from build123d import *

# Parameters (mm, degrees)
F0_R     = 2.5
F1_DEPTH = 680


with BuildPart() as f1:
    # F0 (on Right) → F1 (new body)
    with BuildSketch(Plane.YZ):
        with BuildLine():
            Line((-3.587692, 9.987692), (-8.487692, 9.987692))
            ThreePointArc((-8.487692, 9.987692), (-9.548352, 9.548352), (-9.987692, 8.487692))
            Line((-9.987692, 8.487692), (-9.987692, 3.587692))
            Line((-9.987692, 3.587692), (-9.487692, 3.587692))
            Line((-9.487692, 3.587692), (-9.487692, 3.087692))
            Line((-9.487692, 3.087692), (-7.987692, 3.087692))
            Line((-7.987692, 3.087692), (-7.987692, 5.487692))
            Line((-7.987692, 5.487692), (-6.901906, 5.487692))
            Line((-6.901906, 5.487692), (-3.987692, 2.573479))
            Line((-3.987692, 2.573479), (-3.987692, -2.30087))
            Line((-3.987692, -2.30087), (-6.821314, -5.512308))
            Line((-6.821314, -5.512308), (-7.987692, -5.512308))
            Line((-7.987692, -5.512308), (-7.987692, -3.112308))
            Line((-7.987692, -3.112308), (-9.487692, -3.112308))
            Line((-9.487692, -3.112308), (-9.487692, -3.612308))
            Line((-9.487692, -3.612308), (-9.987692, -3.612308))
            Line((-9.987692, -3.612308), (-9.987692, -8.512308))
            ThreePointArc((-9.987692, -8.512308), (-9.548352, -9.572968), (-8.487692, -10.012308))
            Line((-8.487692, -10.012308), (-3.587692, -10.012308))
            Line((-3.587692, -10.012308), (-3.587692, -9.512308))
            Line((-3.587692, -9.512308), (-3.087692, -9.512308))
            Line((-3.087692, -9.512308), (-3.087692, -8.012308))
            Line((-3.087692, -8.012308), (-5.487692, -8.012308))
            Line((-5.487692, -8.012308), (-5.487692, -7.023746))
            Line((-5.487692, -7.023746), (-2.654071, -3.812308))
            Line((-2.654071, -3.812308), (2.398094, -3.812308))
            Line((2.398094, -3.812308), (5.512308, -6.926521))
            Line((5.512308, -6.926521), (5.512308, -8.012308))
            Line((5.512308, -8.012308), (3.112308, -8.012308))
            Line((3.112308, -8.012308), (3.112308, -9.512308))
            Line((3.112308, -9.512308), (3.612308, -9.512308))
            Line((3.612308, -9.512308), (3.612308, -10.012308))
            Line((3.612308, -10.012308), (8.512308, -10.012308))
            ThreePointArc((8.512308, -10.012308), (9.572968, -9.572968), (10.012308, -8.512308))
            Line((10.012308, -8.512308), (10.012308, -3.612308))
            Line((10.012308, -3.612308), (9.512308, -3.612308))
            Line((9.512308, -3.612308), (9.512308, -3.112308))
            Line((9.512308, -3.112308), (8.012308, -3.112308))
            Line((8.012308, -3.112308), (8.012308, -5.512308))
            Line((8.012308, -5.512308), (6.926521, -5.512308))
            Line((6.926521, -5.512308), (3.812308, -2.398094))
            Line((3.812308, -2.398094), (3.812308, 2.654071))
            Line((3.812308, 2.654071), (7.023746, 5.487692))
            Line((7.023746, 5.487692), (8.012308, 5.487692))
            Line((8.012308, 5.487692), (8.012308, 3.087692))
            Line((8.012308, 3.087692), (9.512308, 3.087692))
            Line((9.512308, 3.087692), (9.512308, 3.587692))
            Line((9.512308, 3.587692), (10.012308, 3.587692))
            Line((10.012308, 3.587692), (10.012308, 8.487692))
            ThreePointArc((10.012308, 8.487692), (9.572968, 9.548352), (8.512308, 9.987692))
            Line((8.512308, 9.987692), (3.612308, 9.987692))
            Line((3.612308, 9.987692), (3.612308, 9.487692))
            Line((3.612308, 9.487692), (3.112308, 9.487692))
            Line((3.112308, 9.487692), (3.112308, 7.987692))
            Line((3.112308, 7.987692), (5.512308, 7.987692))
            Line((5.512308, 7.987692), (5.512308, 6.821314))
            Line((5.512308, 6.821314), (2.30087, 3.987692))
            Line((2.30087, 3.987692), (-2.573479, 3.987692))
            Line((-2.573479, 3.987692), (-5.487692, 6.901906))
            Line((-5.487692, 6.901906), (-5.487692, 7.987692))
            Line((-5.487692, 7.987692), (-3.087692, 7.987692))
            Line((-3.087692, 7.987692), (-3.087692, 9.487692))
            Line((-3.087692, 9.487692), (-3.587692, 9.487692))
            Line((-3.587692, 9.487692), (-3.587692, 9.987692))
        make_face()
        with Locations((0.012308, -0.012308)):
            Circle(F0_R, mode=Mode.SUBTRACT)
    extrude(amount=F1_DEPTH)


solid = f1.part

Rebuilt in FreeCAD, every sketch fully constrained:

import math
import FreeCAD as App
import Part
import Sketcher
from FreeCAD import Vector
Q = App.Units.Quantity

doc = App.newDocument("Part")
body = doc.addObject("PartDesign::Body", "Body")

sketch1 = body.newObject("Sketcher::SketchObject", "Sketch")
sketch1.AttachmentSupport = (doc.getObject("YZ_Plane"), [""])
sketch1.MapMode = "FlatFace"
sketch1.addGeometry([
    Part.LineSegment(Vector(-3.6, 10, 0), Vector(-8.5, 10, 0)),
    Part.ArcOfCircle(Part.Circle(Vector(-8.5, 8.5, 0), Vector(0, 0, 1), 1.5), math.radians(90), math.radians(180)),
    Part.LineSegment(Vector(-10, 8.5, 0), Vector(-10, 3.6, 0)),
    Part.LineSegment(Vector(-10, 3.6, 0), Vector(-9.5, 3.6, 0)),
    Part.LineSegment(Vector(-9.5, 3.6, 0), Vector(-9.5, 3.1, 0)),
    Part.LineSegment(Vector(-9.5, 3.1, 0), Vector(-8, 3.1, 0)),
    Part.LineSegment(Vector(-8, 3.1, 0), Vector(-8, 5.5, 0)),
    Part.LineSegment(Vector(-8, 5.5, 0), Vector(-6.9, 5.5, 0)),
    Part.LineSegment(Vector(-6.9, 5.5, 0), Vector(-4, 2.6, 0)),
    Part.LineSegment(Vector(-4, 2.6, 0), Vector(-4, -2.3, 0)),
    Part.LineSegment(Vector(-4, -2.3, 0), Vector(-6.8, -5.5, 0)),
    Part.LineSegment(Vector(-6.8, -5.5, 0), Vector(-8, -5.5, 0)),
    Part.LineSegment(Vector(-8, -5.5, 0), Vector(-8, -3.1, 0)),
    Part.LineSegment(Vector(-8, -3.1, 0), Vector(-9.5, -3.1, 0)),
    Part.LineSegment(Vector(-9.5, -3.1, 0), Vector(-9.5, -3.6, 0)),
    Part.LineSegment(Vector(-9.5, -3.6, 0), Vector(-10, -3.6, 0)),
    Part.LineSegment(Vector(-10, -3.6, 0), Vector(-10, -8.5, 0)),
    Part.ArcOfCircle(Part.Circle(Vector(-8.5, -8.5, 0), Vector(0, 0, 1), 1.5), math.radians(-180), math.radians(-90)),
    Part.LineSegment(Vector(-8.5, -10, 0), Vector(-3.6, -10, 0)),
    Part.LineSegment(Vector(-3.6, -10, 0), Vector(-3.6, -9.5, 0)),
    Part.LineSegment(Vector(-3.6, -9.5, 0), Vector(-3.1, -9.5, 0)),
    Part.LineSegment(Vector(-3.1, -9.5, 0), Vector(-3.1, -8, 0)),
    Part.LineSegment(Vector(-3.1, -8, 0), Vector(-5.5, -8, 0)),
    Part.LineSegment(Vector(-5.5, -8, 0), Vector(-5.5, -7, 0)),
    Part.LineSegment(Vector(-5.5, -7, 0), Vector(-2.7, -3.8, 0)),
    Part.LineSegment(Vector(-2.7, -3.8, 0), Vector(2.4, -3.8, 0)),
    Part.LineSegment(Vector(2.4, -3.8, 0), Vector(5.5, -6.9, 0)),
    Part.LineSegment(Vector(5.5, -6.9, 0), Vector(5.5, -8, 0)),
    Part.LineSegment(Vector(5.5, -8, 0), Vector(3.1, -8, 0)),
    Part.LineSegment(Vector(3.1, -8, 0), Vector(3.1, -9.5, 0)),
    Part.LineSegment(Vector(3.1, -9.5, 0), Vector(3.6, -9.5, 0)),
    Part.LineSegment(Vector(3.6, -9.5, 0), Vector(3.6, -10, 0)),
    Part.LineSegment(Vector(3.6, -10, 0), Vector(8.5, -10, 0)),
    Part.ArcOfCircle(Part.Circle(Vector(8.5, -8.5, 0), Vector(0, 0, 1), 1.5), math.radians(-90), math.radians(0)),
    Part.LineSegment(Vector(10, -8.5, 0), Vector(10, -3.6, 0)),
    Part.LineSegment(Vector(10, -3.6, 0), Vector(9.5, -3.6, 0)),
    Part.LineSegment(Vector(9.5, -3.6, 0), Vector(9.5, -3.1, 0)),
    Part.LineSegment(Vector(9.5, -3.1, 0), Vector(8, -3.1, 0)),
    Part.LineSegment(Vector(8, -3.1, 0), Vector(8, -5.5, 0)),
    Part.LineSegment(Vector(8, -5.5, 0), Vector(6.9, -5.5, 0)),
    Part.LineSegment(Vector(6.9, -5.5, 0), Vector(3.8, -2.4, 0)),
    Part.LineSegment(Vector(3.8, -2.4, 0), Vector(3.8, 2.7, 0)),
    Part.LineSegment(Vector(3.8, 2.7, 0), Vector(7, 5.5, 0)),
    Part.LineSegment(Vector(7, 5.5, 0), Vector(8, 5.5, 0)),
    Part.LineSegment(Vector(8, 5.5, 0), Vector(8, 3.1, 0)),
    Part.LineSegment(Vector(8, 3.1, 0), Vector(9.5, 3.1, 0)),
    Part.LineSegment(Vector(9.5, 3.1, 0), Vector(9.5, 3.6, 0)),
    Part.LineSegment(Vector(9.5, 3.6, 0), Vector(10, 3.6, 0)),
    Part.LineSegment(Vector(10, 3.6, 0), Vector(10, 8.5, 0)),
    Part.ArcOfCircle(Part.Circle(Vector(8.5, 8.5, 0), Vector(0, 0, 1), 1.5), math.radians(0), math.radians(90)),
    Part.LineSegment(Vector(8.5, 10, 0), Vector(3.6, 10, 0)),
    Part.LineSegment(Vector(3.6, 10, 0), Vector(3.6, 9.5, 0)),
    Part.LineSegment(Vector(3.6, 9.5, 0), Vector(3.1, 9.5, 0)),
    Part.LineSegment(Vector(3.1, 9.5, 0), Vector(3.1, 8, 0)),
    Part.LineSegment(Vector(3.1, 8, 0), Vector(5.5, 8, 0)),
    Part.LineSegment(Vector(5.5, 8, 0), Vector(5.5, 6.8, 0)),
    Part.LineSegment(Vector(5.5, 6.8, 0), Vector(2.3, 4, 0)),
    Part.LineSegment(Vector(2.3, 4, 0), Vector(-2.6, 4, 0)),
    Part.LineSegment(Vector(-2.6, 4, 0), Vector(-5.5, 6.9, 0)),
    Part.LineSegment(Vector(-5.5, 6.9, 0), Vector(-5.5, 8, 0)),
    Part.LineSegment(Vector(-5.5, 8, 0), Vector(-3.1, 8, 0)),
    Part.LineSegment(Vector(-3.1, 8, 0), Vector(-3.1, 9.5, 0)),
    Part.LineSegment(Vector(-3.1, 9.5, 0), Vector(-3.6, 9.5, 0)),
    Part.LineSegment(Vector(-3.6, 9.5, 0), Vector(-3.6, 10, 0)),
    Part.Circle(Vector(0, 0, 0), Vector(0, 0, 1), 2.5),
], False)
sketch1.addConstraint([
    Sketcher.Constraint("Tangent", 0, 2, 1, 1),
    Sketcher.Constraint("Tangent", 1, 2, 2, 1),
    Sketcher.Constraint("Coincident", 2, 2, 3, 1),
    Sketcher.Constraint("Coincident", 3, 2, 4, 1),
    Sketcher.Constraint("Coincident", 4, 2, 5, 1),
    Sketcher.Constraint("Coincident", 5, 2, 6, 1),
    Sketcher.Constraint("Coincident", 6, 2, 7, 1),
    Sketcher.Constraint("Coincident", 7, 2, 8, 1),
    Sketcher.Constraint("Coincident", 8, 2, 9, 1),
    Sketcher.Constraint("Coincident", 9, 2, 10, 1),
    Sketcher.Constraint("Coincident", 10, 2, 11, 1),
    Sketcher.Constraint("Coincident", 11, 2, 12, 1),
    Sketcher.Constraint("Coincident", 12, 2, 13, 1),
    Sketcher.Constraint("Coincident", 13, 2, 14, 1),
    Sketcher.Constraint("Coincident", 14, 2, 15, 1),
    Sketcher.Constraint("Coincident", 15, 2, 16, 1),
    Sketcher.Constraint("Tangent", 16, 2, 17, 1),
    Sketcher.Constraint("Tangent", 17, 2, 18, 1),
    Sketcher.Constraint("Coincident", 18, 2, 19, 1),
    Sketcher.Constraint("Coincident", 19, 2, 20, 1),
    Sketcher.Constraint("Coincident", 20, 2, 21, 1),
    Sketcher.Constraint("Coincident", 21, 2, 22, 1),
    Sketcher.Constraint("Coincident", 22, 2, 23, 1),
    Sketcher.Constraint("Coincident", 23, 2, 24, 1),
    Sketcher.Constraint("Coincident", 24, 2, 25, 1),
    Sketcher.Constraint("Coincident", 25, 2, 26, 1),
    Sketcher.Constraint("Coincident", 26, 2, 27, 1),
    Sketcher.Constraint("Coincident", 27, 2, 28, 1),
    Sketcher.Constraint("Coincident", 28, 2, 29, 1),
    Sketcher.Constraint("Coincident", 29, 2, 30, 1),
    Sketcher.Constraint("Coincident", 30, 2, 31, 1),
    Sketcher.Constraint("Coincident", 31, 2, 32, 1),
    Sketcher.Constraint("Tangent", 32, 2, 33, 1),
    Sketcher.Constraint("Tangent", 33, 2, 34, 1),
    Sketcher.Constraint("Coincident", 34, 2, 35, 1),
    Sketcher.Constraint("Coincident", 35, 2, 36, 1),
    Sketcher.Constraint("Coincident", 36, 2, 37, 1),
    Sketcher.Constraint("Coincident", 37, 2, 38, 1),
    Sketcher.Constraint("Coincident", 38, 2, 39, 1),
    Sketcher.Constraint("Coincident", 39, 2, 40, 1),
    Sketcher.Constraint("Coincident", 40, 2, 41, 1),
    Sketcher.Constraint("Coincident", 41, 2, 42, 1),
    Sketcher.Constraint("Coincident", 42, 2, 43, 1),
    Sketcher.Constraint("Coincident", 43, 2, 44, 1),
    Sketcher.Constraint("Coincident", 44, 2, 45, 1),
    Sketcher.Constraint("Coincident", 45, 2, 46, 1),
    Sketcher.Constraint("Coincident", 46, 2, 47, 1),
    Sketcher.Constraint("Coincident", 47, 2, 48, 1),
    Sketcher.Constraint("Tangent", 48, 2, 49, 1),
    Sketcher.Constraint("Tangent", 49, 2, 50, 1),
    Sketcher.Constraint("Coincident", 50, 2, 51, 1),
    Sketcher.Constraint("Coincident", 51, 2, 52, 1),
    Sketcher.Constraint("Coincident", 52, 2, 53, 1),
    Sketcher.Constraint("Coincident", 53, 2, 54, 1),
    Sketcher.Constraint("Coincident", 54, 2, 55, 1),
    Sketcher.Constraint("Coincident", 55, 2, 56, 1),
    Sketcher.Constraint("Coincident", 56, 2, 57, 1),
    Sketcher.Constraint("Coincident", 57, 2, 58, 1),
    Sketcher.Constraint("Coincident", 58, 2, 59, 1),
    Sketcher.Constraint("Coincident", 59, 2, 60, 1),
    Sketcher.Constraint("Coincident", 60, 2, 61, 1),
    Sketcher.Constraint("Coincident", 61, 2, 62, 1),
    Sketcher.Constraint("Coincident", 62, 2, 63, 1),
    Sketcher.Constraint("Coincident", 63, 2, 0, 1),
    Sketcher.Constraint("Horizontal", 0),
    Sketcher.Constraint("Vertical", 2),
    Sketcher.Constraint("Horizontal", 3),
    Sketcher.Constraint("Vertical", 4),
    Sketcher.Constraint("Horizontal", 5),
    Sketcher.Constraint("Vertical", 6),
    Sketcher.Constraint("Horizontal", 7),
    Sketcher.Constraint("Vertical", 9),
    Sketcher.Constraint("Horizontal", 11),
    Sketcher.Constraint("Vertical", 12),
    Sketcher.Constraint("Horizontal", 13),
    Sketcher.Constraint("Vertical", 14),
    Sketcher.Constraint("Horizontal", 15),
    Sketcher.Constraint("Vertical", 16),
    Sketcher.Constraint("Horizontal", 18),
    Sketcher.Constraint("Vertical", 19),
    Sketcher.Constraint("Horizontal", 20),
    Sketcher.Constraint("Vertical", 21),
    Sketcher.Constraint("Horizontal", 22),
    Sketcher.Constraint("Vertical", 23),
    Sketcher.Constraint("Horizontal", 25),
    Sketcher.Constraint("Vertical", 27),
    Sketcher.Constraint("Horizontal", 28),
    Sketcher.Constraint("Vertical", 29),
    Sketcher.Constraint("Horizontal", 30),
    Sketcher.Constraint("Vertical", 31),
    Sketcher.Constraint("Horizontal", 32),
    Sketcher.Constraint("Vertical", 34),
    Sketcher.Constraint("Horizontal", 35),
    Sketcher.Constraint("Vertical", 36),
    Sketcher.Constraint("Horizontal", 37),
    Sketcher.Constraint("Vertical", 38),
    Sketcher.Constraint("Horizontal", 39),
    Sketcher.Constraint("Vertical", 41),
    Sketcher.Constraint("Horizontal", 43),
    Sketcher.Constraint("Vertical", 44),
    Sketcher.Constraint("Horizontal", 45),
    Sketcher.Constraint("Vertical", 46),
    Sketcher.Constraint("Horizontal", 47),
    Sketcher.Constraint("Vertical", 48),
    Sketcher.Constraint("Horizontal", 50),
    Sketcher.Constraint("Vertical", 51),
    Sketcher.Constraint("Horizontal", 52),
    Sketcher.Constraint("Vertical", 53),
    Sketcher.Constraint("Horizontal", 54),
    Sketcher.Constraint("Vertical", 55),
    Sketcher.Constraint("Horizontal", 57),
    Sketcher.Constraint("Vertical", 59),
    Sketcher.Constraint("Horizontal", 60),
    Sketcher.Constraint("Vertical", 61),
    Sketcher.Constraint("Horizontal", 62),
    Sketcher.Constraint("Vertical", 63),
    Sketcher.Constraint("Equal", 1, 17),
    Sketcher.Constraint("Equal", 17, 33),
    Sketcher.Constraint("Equal", 33, 49),
    Sketcher.Constraint("Parallel", 10, 24),
    Sketcher.Constraint("Parallel", 8, 26),
    Sketcher.Constraint("Parallel", 26, 40),
    Sketcher.Constraint("Parallel", 42, 56),
    Sketcher.Constraint("Parallel", 40, 58),
    Sketcher.Constraint("Horizontal", 17, 3, 33, 3),
    Sketcher.Constraint("Horizontal", 1, 3, 49, 3),
    Sketcher.Constraint("Horizontal", 22, 2, 27, 2),
    Sketcher.Constraint("Horizontal", 20, 2, 29, 2),
    Sketcher.Constraint("Horizontal", 15, 2, 34, 2),
    Sketcher.Constraint("Horizontal", 13, 2, 36, 2),
    Sketcher.Constraint("Horizontal", 11, 2, 38, 2),
    Sketcher.Constraint("Horizontal", 7, 2, 42, 2),
    Sketcher.Constraint("Horizontal", 5, 2, 44, 2),
    Sketcher.Constraint("Horizontal", 3, 2, 46, 2),
    Sketcher.Constraint("Horizontal", 54, 2, 59, 2),
    Sketcher.Constraint("Horizontal", 52, 2, 61, 2),
    Sketcher.Constraint("Vertical", 1, 3, 17, 3),
    Sketcher.Constraint("Vertical", 33, 3, 49, 3),
    Sketcher.Constraint("Vertical", 6, 2, 11, 2),
    Sketcher.Constraint("Vertical", 4, 2, 13, 2),
    Sketcher.Constraint("Vertical", 38, 2, 43, 2),
    Sketcher.Constraint("Vertical", 36, 2, 45, 2),
    Sketcher.Constraint("Vertical", 31, 2, 50, 2),
    Sketcher.Constraint("Vertical", 29, 2, 52, 2),
    Sketcher.Constraint("Vertical", 27, 2, 54, 2),
    Sketcher.Constraint("Vertical", 23, 2, 58, 2),
    Sketcher.Constraint("Vertical", 21, 2, 60, 2),
    Sketcher.Constraint("Vertical", 19, 2, 62, 2),
    Sketcher.Constraint("Equal", 15, 20),
    Sketcher.Constraint("Equal", 22, 28),
    Sketcher.Constraint("Equal", 20, 30),
    Sketcher.Constraint("Equal", 18, 32),
    Sketcher.Constraint("Equal", 30, 35),
    Sketcher.Constraint("Equal", 13, 37),
    Sketcher.Constraint("Equal", 7, 39),
    Sketcher.Constraint("Equal", 50, 2),
    Sketcher.Constraint("Equal", 62, 4),
    Sketcher.Constraint("Equal", 60, 6),
    Sketcher.Constraint("Equal", 57, 9),
    Sketcher.Constraint("Equal", 6, 12),
    Sketcher.Constraint("Equal", 4, 14),
    Sketcher.Constraint("Equal", 2, 16),
    Sketcher.Constraint("Equal", 14, 19),
    Sketcher.Constraint("Equal", 45, 21),
    Sketcher.Constraint("Equal", 43, 23),
    Sketcher.Constraint("Equal", 39, 27),
    Sketcher.Constraint("Equal", 25, 41),
    Sketcher.Constraint("Equal", 46, 51),
    Sketcher.Constraint("Equal", 29, 53),
    Sketcher.Constraint("Equal", 11, 55),
    Sketcher.Constraint("Equal", 27, 59),
    Sketcher.Constraint("Equal", 10, 24),
    Sketcher.Constraint("Equal", 26, 40),
    Sketcher.Constraint("Equal", 24, 42),
    Sketcher.Constraint("Equal", 42, 56),
    Sketcher.Constraint("Diameter", 64, Q("5 mm")),
    Sketcher.Constraint("Radius", 1, Q("1.500001 mm")),
    Sketcher.Constraint("DistanceX", 0, 2, 0, 1, Q("4.9 mm")),
    Sketcher.Constraint("DistanceX", 3, 1, 3, 2, Q("0.5 mm")),
    Sketcher.Constraint("DistanceX", 5, 1, 5, 2, Q("1.5 mm")),
    Sketcher.Constraint("DistanceX", 22, 2, 22, 1, Q("2.4 mm")),
    Sketcher.Constraint("DistanceX", 57, 2, 57, 1, Q("4.874349 mm")),
    Sketcher.Constraint("Distance", 8, Q("4.12132 mm")),
    Sketcher.Constraint("DistanceX", 7, 1, 7, 2, Q("1.085786 mm")),
    Sketcher.Constraint("DistanceX", 11, 2, 11, 1, Q("1.166378 mm")),
    Sketcher.Constraint("DistanceX", 25, 1, 25, 2, Q("5.052165 mm")),
    Sketcher.Constraint("DistanceX", 1, 3, -1, 1, Q("8.487691 mm")),
    Sketcher.Constraint("DistanceY", -1, 1, 1, 3, Q("8.487691 mm")),
    Sketcher.Constraint("DistanceY", 12, 2, -1, 1, Q("3.112308 mm")),
    Sketcher.Constraint("DistanceX", -1, 1, 64, 3, Q("0.012308 mm")),
    Sketcher.Constraint("DistanceY", 64, 3, -1, 1, Q("0.012308 mm")),
])
pad1 = body.newObject("PartDesign::Pad", "Pad")
pad1.Profile = sketch1
pad1.Length = 680

doc.recompute()
